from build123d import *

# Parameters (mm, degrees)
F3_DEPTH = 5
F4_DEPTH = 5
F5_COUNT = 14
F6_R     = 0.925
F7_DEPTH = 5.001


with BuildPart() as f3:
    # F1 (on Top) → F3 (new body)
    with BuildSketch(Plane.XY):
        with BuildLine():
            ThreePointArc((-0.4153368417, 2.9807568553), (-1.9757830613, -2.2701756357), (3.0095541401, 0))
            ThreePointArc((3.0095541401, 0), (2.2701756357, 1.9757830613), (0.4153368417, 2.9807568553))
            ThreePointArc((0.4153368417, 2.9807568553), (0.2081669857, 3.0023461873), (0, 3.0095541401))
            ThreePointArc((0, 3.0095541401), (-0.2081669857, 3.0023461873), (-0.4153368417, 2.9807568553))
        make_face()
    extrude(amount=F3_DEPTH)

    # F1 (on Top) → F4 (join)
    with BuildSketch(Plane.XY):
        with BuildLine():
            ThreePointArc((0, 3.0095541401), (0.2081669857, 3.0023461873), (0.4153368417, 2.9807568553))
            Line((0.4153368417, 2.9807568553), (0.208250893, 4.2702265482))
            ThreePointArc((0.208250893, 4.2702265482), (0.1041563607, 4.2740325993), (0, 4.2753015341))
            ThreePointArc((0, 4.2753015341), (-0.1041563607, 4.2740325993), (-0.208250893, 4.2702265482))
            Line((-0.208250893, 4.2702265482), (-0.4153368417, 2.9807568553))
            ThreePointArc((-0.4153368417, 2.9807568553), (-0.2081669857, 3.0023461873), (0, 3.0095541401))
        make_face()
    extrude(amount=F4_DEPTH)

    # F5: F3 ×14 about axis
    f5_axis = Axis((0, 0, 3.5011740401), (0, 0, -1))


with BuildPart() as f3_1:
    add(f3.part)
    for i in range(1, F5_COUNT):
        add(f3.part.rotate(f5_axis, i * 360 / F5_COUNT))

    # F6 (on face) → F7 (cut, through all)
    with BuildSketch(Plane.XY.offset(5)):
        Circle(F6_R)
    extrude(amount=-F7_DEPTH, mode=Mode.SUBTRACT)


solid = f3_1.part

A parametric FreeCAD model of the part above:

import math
import FreeCAD as App
import Part
import Sketcher
from FreeCAD import Vector
Q = App.Units.Quantity

doc = App.newDocument("Part")
body = doc.addObject("PartDesign::Body", "Body")

# Sketch on XY plane
sketch1 = doc.addObject("Sketcher::SketchObject", "Sketch")
body.addObject(sketch1)
sketch1.AttachmentSupport = (doc.XY_Plane, [""])
sketch1.MapMode = "FlatFace"
sketch1.addGeometry([
    Part.ArcOfCircle(Part.Circle(Vector(0, 0, 0), Vector(0, 0, 1), 3.01), math.radians(98), math.radians(360)),
    Part.ArcOfCircle(Part.Circle(Vector(0, 0, 0), Vector(0, 0, 1), 3.01), math.radians(0), math.radians(82)),
    Part.ArcOfCircle(Part.Circle(Vector(0, 0, 0), Vector(0, 0, 1), 3.01), math.radians(82.07), math.radians(90)),
    Part.ArcOfCircle(Part.Circle(Vector(0, 0, 0), Vector(0, 0, 1), 3.01), math.radians(90), math.radians(97.93)),
], False)
sketch1.addConstraint([
    Sketcher.Constraint("Tangent", 0, 2, 1, 1),
    Sketcher.Constraint("Tangent", 1, 2, 2, 1),
    Sketcher.Constraint("Tangent", 2, 2, 3, 1),
    Sketcher.Constraint("Tangent", 3, 2, 0, 1),
    Sketcher.Constraint("Coincident", 0, 3, -1, 1),
    Sketcher.Constraint("Equal", 0, 1),
    Sketcher.Constraint("PointOnObject", 0, 2, -1),
    Sketcher.Constraint("PointOnObject", 2, 2, -2),
    Sketcher.Constraint("Horizontal", 1, 2, 3, 2),
    Sketcher.Constraint("Radius", 0, Q("3.009554 mm")),
    Sketcher.Constraint("DistanceX", -1, 1, 1, 2, Q("0.415337 mm")),
])
pad1 = doc.addObject("PartDesign::Pad", "Pad")
body.addObject(pad1)
pad1.Profile = sketch1
pad1.Length = 5

# Sketch on XY plane
sketch2 = doc.addObject("Sketcher::SketchObject", "Sketch001")
body.addObject(sketch2)
sketch2.AttachmentSupport = (doc.XY_Plane, [""])
sketch2.MapMode = "FlatFace"
sketch2.addGeometry([
    Part.ArcOfCircle(Part.Circle(Vector(0, 0, 0), Vector(0, 0, 1), 3.01), math.radians(82.07), math.radians(90)),  # 0
    Part.LineSegment(Vector(0.42, 2.98, 0), Vector(0.21, 4.27, 0)),  # 1
    Part.ArcOfCircle(Part.Circle(Vector(0, 0, 0), Vector(0, 0, 1), 4.28), math.radians(87.21), math.radians(90)),  # 2
    Part.ArcOfCircle(Part.Circle(Vector(0, 0, 0), Vector(0, 0, 1), 4.28), math.radians(90), math.radians(92.79)),  # 3
    Part.LineSegment(Vector(-0.21, 4.27, 0), Vector(-0.42, 2.98, 0)),  # 4
    Part.ArcOfCircle(Part.Circle(Vector(0, 0, 0), Vector(0, 0, 1), 3.01), math.radians(90), math.radians(97.93)),  # 5
], False)
sketch2.addConstraint([
    Sketcher.Constraint("Coincident", 0, 1, 1, 1),
    Sketcher.Constraint("Coincident", 1, 2, 2, 1),
    Sketcher.Constraint("Tangent", 2, 2, 3, 1),
    Sketcher.Constraint("Coincident", 3, 2, 4, 1),
    Sketcher.Constraint("Coincident", 4, 2, 5, 2),
    Sketcher.Constraint("Tangent", 5, 1, 0, 2),
    Sketcher.Constraint("Coincident", 0, 3, -1, 1),
    Sketcher.Constraint("Coincident", 2, 3, -1, 1),
    Sketcher.Constraint("Equal", 2, 3),
    Sketcher.Constraint("Equal", 0, 5),
    Sketcher.Constraint("PointOnObject", 2, 2, -2),
    Sketcher.Constraint("PointOnObject", 5, 1, -2),
    Sketcher.Constraint("Horizontal", 1, 2, 3, 2),
    Sketcher.Constraint("Horizontal", 0, 1, 4, 2),
    Sketcher.Constraint("Radius", 2, Q("4.275302 mm")),
    Sketcher.Constraint("Radius", 0, Q("3.009554 mm")),
    Sketcher.Constraint("DistanceX", 3, 2, 1, 2, Q("0.416502 mm")),
    Sketcher.Constraint("DistanceY", 0, 1, 1, 2, Q("1.28947 mm")),
])
pad2 = doc.addObject("PartDesign::Pad", "Pad001")
body.addObject(pad2)
pad2.Profile = sketch2
pad2.Length = 5
body2 = doc.addObject("PartDesign::Body", "Body001")
doc.recompute()

body2.BaseFeature = body
doc.recompute()

body3 = doc.addObject("PartDesign::Body", "Body002")
body3.BaseFeature = body
body3.Placement = App.Placement(Vector(0, 0, 0), App.Rotation(Vector(0, 0, -1), 25.714286))
boolean = doc.addObject("PartDesign::Boolean", "Boolean")
body2.addObject(boolean)
boolean.Type = "Fuse"
boolean.addObjects([body3])
doc.recompute()

body4 = doc.addObject("PartDesign::Body", "Body003")
body4.BaseFeature = body
body4.Placement = App.Placement(Vector(0, 0, 0), App.Rotation(Vector(0, 0, -1), 51.428571))
boolean2 = doc.addObject("PartDesign::Boolean", "Boolean001")
body2.addObject(boolean2)
boolean2.Type = "Fuse"
boolean2.addObjects([body4])
doc.recompute()

body5 = doc.addObject("PartDesign::Body", "Body004")
body5.BaseFeature = body
body5.Placement = App.Placement(Vector(0, 0, 0), App.Rotation(Vector(0, 0, -1), 77.142857))
boolean3 = doc.addObject("PartDesign::Boolean", "Boolean002")
body2.addObject(boolean3)
boolean3.Type = "Fuse"
boolean3.addObjects([body5])
doc.recompute()

body6 = doc.addObject("PartDesign::Body", "Body005")
body6.BaseFeature = body
body6.Placement = App.Placement(Vector(0, 0, 0), App.Rotation(Vector(0, 0, -1), 102.857143))
boolean4 = doc.addObject("PartDesign::Boolean", "Boolean003")
body2.addObject(boolean4)
boolean4.Type = "Fuse"
boolean4.addObjects([body6])
doc.recompute()

body7 = doc.addObject("PartDesign::Body", "Body006")
body7.BaseFeature = body
body7.Placement = App.Placement(Vector(0, 0, 0), App.Rotation(Vector(0, 0, -1), 128.571429))
boolean5 = doc.addObject("PartDesign::Boolean", "Boolean004")
body2.addObject(boolean5)
boolean5.Type = "Fuse"
boolean5.addObjects([body7])
doc.recompute()

body8 = doc.addObject("PartDesign::Body", "Body007")
body8.BaseFeature = body
body8.Placement = App.Placement(Vector(0, 0, 0), App.Rotation(Vector(0, 0, -1), 154.285714))
boolean6 = doc.addObject("PartDesign::Boolean", "Boolean005")
body2.addObject(boolean6)
boolean6.Type = "Fuse"
boolean6.addObjects([body8])
doc.recompute()

body9 = doc.addObject("PartDesign::Body", "Body008")
body9.BaseFeature = body
body9.Placement = App.Placement(Vector(0, 0, 0), App.Rotation(Vector(0, 0, -1), 180))
boolean7 = doc.addObject("PartDesign::Boolean", "Boolean006")
body2.addObject(boolean7)
boolean7.Type = "Fuse"
boolean7.addObjects([body9])
doc.recompute()

body10 = doc.addObject("PartDesign::Body", "Body009")
body10.BaseFeature = body
body10.Placement = App.Placement(Vector(0, 0, 0), App.Rotation(Vector(0, 0, -1), 205.714286))
boolean8 = doc.addObject("PartDesign::Boolean", "Boolean007")
body2.addObject(boolean8)
boolean8.Type = "Fuse"
boolean8.addObjects([body10])
doc.recompute()

body11 = doc.addObject("PartDesign::Body", "Body010")
body11.BaseFeature = body
body11.Placement = App.Placement(Vector(0, 0, 0), App.Rotation(Vector(0, 0, -1), 231.428571))
boolean9 = doc.addObject("PartDesign::Boolean", "Boolean008")
body2.addObject(boolean9)
boolean9.Type = "Fuse"
boolean9.addObjects([body11])
doc.recompute()

body12 = doc.addObject("PartDesign::Body", "Body011")
body12.BaseFeature = body
body12.Placement = App.Placement(Vector(0, 0, 0), App.Rotation(Vector(0, 0, -1), 257.142857))
boolean10 = doc.addObject("PartDesign::Boolean", "Boolean009")
body2.addObject(boolean10)
boolean10.Type = "Fuse"
boolean10.addObjects([body12])
doc.recompute()

body13 = doc.addObject("PartDesign::Body", "Body012")
body13.BaseFeature = body
body13.Placement = App.Placement(Vector(0, 0, 0), App.Rotation(Vector(0, 0, -1), 282.857143))
boolean11 = doc.addObject("PartDesign::Boolean", "Boolean010")
body2.addObject(boolean11)
boolean11.Type = "Fuse"
boolean11.addObjects([body13])
doc.recompute()

body14 = doc.addObject("PartDesign::Body", "Body013")
body14.BaseFeature = body
body14.Placement = App.Placement(Vector(0, 0, 0), App.Rotation(Vector(0, 0, -1), 308.571429))
boolean12 = doc.addObject("PartDesign::Boolean", "Boolean011")
body2.addObject(boolean12)
boolean12.Type = "Fuse"
boolean12.addObjects([body14])
doc.recompute()

body.Placement = App.Placement(Vector(0, 0, 0), App.Rotation(Vector(0, 0, -1), 334.285714))
boolean13 = doc.addObject("PartDesign::Boolean", "Boolean012")
body2.addObject(boolean13)
boolean13.Type = "Fuse"
boolean13.addObjects([body])

# Sketch on XY plane
sketch3 = doc.addObject("Sketcher::SketchObject", "Sketch002")
body2.addObject(sketch3)
sketch3.AttachmentSupport = (doc.getObject("XY_Plane001"), [""])
sketch3.MapMode = "FlatFace"
sketch3.AttachmentOffset = App.Placement(Vector(0, 0, 5), App.Rotation())
sketch3.addGeometry(Part.Circle(Vector(0, 0, 0), Vector(0, 0, 1), 0.9), False)
sketch3.addConstraint([
    Sketcher.Constraint("Coincident", 0, 3, -1, 1),
    Sketcher.Constraint("Diameter", 0, Q("1.85 mm")),
])
pocket1 = doc.addObject("PartDesign::Pocket", "Pocket")
body2.addObject(pocket1)
pocket1.Profile = sketch3
pocket1.Type = "ThroughAll"

doc.recompute()
